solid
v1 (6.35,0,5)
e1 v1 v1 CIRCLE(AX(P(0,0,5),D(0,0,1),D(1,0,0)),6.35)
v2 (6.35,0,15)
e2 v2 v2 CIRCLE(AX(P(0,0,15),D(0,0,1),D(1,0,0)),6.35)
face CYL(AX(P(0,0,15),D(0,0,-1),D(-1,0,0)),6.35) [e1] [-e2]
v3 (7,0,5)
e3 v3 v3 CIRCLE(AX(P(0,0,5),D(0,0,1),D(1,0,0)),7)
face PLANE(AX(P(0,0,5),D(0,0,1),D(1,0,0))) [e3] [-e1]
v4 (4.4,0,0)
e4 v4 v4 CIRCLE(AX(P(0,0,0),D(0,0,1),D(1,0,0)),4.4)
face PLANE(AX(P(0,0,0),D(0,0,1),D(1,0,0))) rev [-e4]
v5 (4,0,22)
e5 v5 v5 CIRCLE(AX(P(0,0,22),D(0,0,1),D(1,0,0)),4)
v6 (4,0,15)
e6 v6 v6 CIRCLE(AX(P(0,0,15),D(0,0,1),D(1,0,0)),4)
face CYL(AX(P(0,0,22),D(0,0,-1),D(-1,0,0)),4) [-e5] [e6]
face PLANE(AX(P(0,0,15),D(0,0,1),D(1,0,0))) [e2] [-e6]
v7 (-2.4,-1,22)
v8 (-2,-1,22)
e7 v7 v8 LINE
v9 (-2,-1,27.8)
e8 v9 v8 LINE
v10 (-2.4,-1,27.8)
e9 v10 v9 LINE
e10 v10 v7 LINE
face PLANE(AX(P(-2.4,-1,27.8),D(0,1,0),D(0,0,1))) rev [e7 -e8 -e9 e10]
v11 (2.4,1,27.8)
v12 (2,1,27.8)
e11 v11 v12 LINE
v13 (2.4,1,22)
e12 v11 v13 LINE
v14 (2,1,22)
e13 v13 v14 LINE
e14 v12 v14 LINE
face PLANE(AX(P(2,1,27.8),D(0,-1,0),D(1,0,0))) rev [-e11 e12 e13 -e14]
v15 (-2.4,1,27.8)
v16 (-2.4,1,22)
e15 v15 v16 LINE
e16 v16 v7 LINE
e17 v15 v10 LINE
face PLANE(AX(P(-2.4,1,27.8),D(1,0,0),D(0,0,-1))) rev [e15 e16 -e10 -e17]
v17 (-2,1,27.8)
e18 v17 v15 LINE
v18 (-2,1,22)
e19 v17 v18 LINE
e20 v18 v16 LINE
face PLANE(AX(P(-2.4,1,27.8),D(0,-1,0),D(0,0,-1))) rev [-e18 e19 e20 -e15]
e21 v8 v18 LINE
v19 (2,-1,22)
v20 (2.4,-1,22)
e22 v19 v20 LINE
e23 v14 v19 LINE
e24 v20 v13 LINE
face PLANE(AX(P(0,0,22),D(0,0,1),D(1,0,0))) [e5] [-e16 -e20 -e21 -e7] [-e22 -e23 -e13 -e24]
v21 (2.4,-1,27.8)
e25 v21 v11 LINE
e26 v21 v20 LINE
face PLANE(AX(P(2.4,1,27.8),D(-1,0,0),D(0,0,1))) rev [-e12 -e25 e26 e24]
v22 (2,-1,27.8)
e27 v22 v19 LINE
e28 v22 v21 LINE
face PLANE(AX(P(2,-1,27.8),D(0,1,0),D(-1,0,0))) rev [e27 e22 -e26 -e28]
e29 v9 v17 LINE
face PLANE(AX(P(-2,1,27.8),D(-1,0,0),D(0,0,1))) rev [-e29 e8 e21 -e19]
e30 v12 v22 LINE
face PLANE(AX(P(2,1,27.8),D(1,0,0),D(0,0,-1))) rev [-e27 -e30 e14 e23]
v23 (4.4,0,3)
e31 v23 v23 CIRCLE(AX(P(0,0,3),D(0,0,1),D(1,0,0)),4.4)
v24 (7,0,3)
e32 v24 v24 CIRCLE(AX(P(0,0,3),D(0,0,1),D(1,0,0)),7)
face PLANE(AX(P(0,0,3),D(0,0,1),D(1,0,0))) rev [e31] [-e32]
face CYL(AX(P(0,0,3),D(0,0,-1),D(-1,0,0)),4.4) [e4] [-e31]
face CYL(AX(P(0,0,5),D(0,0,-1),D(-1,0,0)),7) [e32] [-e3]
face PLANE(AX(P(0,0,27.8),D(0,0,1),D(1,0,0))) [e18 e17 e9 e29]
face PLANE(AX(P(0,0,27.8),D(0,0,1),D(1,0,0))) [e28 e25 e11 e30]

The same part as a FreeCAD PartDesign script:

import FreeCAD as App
import Part
import Sketcher
from FreeCAD import Vector


def add_polygon(sketch, points):
    """Adds a closed chain of lines whose ends are joined by coincident constraints."""
    first, n = sketch.GeometryCount, len(points)
    for a, b in zip(points, points[1:] + points[:1]):
        sketch.addGeometry(Part.LineSegment(App.Vector(*a, 0), App.Vector(*b, 0)), False)
    for i in range(n):
        sketch.addConstraint(Sketcher.Constraint("Coincident", first + i, 2, first + (i + 1) % n, 1))

doc = App.newDocument("Part")
body = doc.addObject("PartDesign::Body", "Body")

# Sketch on XY plane
sketch1 = body.newObject("Sketcher::SketchObject", "Sketch")
sketch1.AttachmentSupport = (doc.getObject("XY_Plane"), [""])
sketch1.MapMode = "FlatFace"
sketch1.addGeometry(Part.Circle(Vector(0, 0, 0), Vector(0, 0, 1), 4.4), False)
sketch1.addConstraint(Sketcher.Constraint("Coincident", 0, 3, -1, 1))
sketch1.addConstraint(Sketcher.Constraint("Diameter", 0, 8.8))
pad1 = body.newObject("PartDesign::Pad", "Pad")
pad1.Profile = sketch1
pad1.Length = 3

# Sketch on XY plane
sketch2 = body.newObject("Sketcher::SketchObject", "Sketch001")
sketch2.AttachmentSupport = (doc.getObject("XY_Plane"), [""])
sketch2.MapMode = "FlatFace"
sketch2.AttachmentOffset = App.Placement(Vector(0, 0, 3), App.Rotation())
sketch2.addGeometry(Part.Circle(Vector(0, 0, 0), Vector(0, 0, 1), 7), False)
sketch2.addConstraint(Sketcher.Constraint("Coincident", 0, 3, -1, 1))
sketch2.addConstraint(Sketcher.Constraint("Diameter", 0, 14.0))
pad2 = body.newObject("PartDesign::Pad", "Pad001")
pad2.Profile = sketch2
pad2.Length = 2

# Sketch on XY plane
sketch3 = body.newObject("Sketcher::SketchObject", "Sketch002")
sketch3.AttachmentSupport = (doc.getObject("XY_Plane"), [""])
sketch3.MapMode = "FlatFace"
sketch3.AttachmentOffset = App.Placement(Vector(0, 0, 5), App.Rotation())
sketch3.addGeometry(Part.Circle(Vector(0, 0, 0), Vector(0, 0, 1), 6), False)
sketch3.addConstraint(Sketcher.Constraint("Coincident", 0, 3, -1, 1))
sketch3.addConstraint(Sketcher.Constraint("Diameter", 0, 12.7))
pad3 = body.newObject("PartDesign::Pad", "Pad002")
pad3.Profile = sketch3
pad3.Length = 10

# Sketch on XY plane
sketch4 = body.newObject("Sketcher::SketchObject", "Sketch003")
sketch4.AttachmentSupport = (doc.getObject("XY_Plane"), [""])
sketch4.MapMode = "FlatFace"
sketch4.AttachmentOffset = App.Placement(Vector(0, 0, 15), App.Rotation())
sketch4.addGeometry(Part.Circle(Vector(0, 0, 0), Vector(0, 0, 1), 4), False)
sketch4.addConstraint(Sketcher.Constraint("Coincident", 0, 3, -1, 1))
sketch4.addConstraint(Sketcher.Constraint("Diameter", 0, 8.0))
pad4 = body.newObject("PartDesign::Pad", "Pad003")
pad4.Profile = sketch4
pad4.Length = 7

# Sketch on XY plane
sketch5 = body.newObject("Sketcher::SketchObject", "Sketch004")
sketch5.AttachmentSupport = (doc.getObject("XY_Plane"), [""])
sketch5.MapMode = "FlatFace"
sketch5.AttachmentOffset = App.Placement(Vector(0, 0, 22), App.Rotation())
add_polygon(sketch5, [(-2.4, 1), (-2.4, -1), (-2, -1), (-2, 1)])  # lines 0-3
add_polygon(sketch5, [(2, 1), (2, -1), (2.4, -1), (2.4, 1)])  # lines 4-7
sketch5.addConstraint(Sketcher.Constraint("Vertical", 0))
sketch5.addConstraint(Sketcher.Constraint("Horizontal", 1))
sketch5.addConstraint(Sketcher.Constraint("Vertical", 2))
sketch5.addConstraint(Sketcher.Constraint("Horizontal", 3))
sketch5.addConstraint(Sketcher.Constraint("Vertical", 4))
sketch5.addConstraint(Sketcher.Constraint("Horizontal", 5))
sketch5.addConstraint(Sketcher.Constraint("Vertical", 6))
sketch5.addConstraint(Sketcher.Constraint("Horizontal", 7))
sketch5.addConstraint(Sketcher.Constraint("Symmetric", 2, 2, 4, 2, -1, 1))
sketch5.addConstraint(Sketcher.Constraint("Symmetric", 0, 2, 6, 2, -1, 1))
sketch5.addConstraint(Sketcher.Constraint("Horizontal", 1, 2, 4, 2))
sketch5.addConstraint(Sketcher.Constraint("DistanceY", 0, 2, 0, 1, 2.0))
sketch5.addConstraint(Sketcher.Constraint("DistanceX", 1, 1, 1, 2, 0.4))
sketch5.addConstraint(Sketcher.Constraint("DistanceX", 1, 2, -1, 1, 2.0))
pad5 = body.newObject("PartDesign::Pad", "Pad004")
pad5.Profile = sketch5
pad5.Length = 5.8

doc.recompute()
